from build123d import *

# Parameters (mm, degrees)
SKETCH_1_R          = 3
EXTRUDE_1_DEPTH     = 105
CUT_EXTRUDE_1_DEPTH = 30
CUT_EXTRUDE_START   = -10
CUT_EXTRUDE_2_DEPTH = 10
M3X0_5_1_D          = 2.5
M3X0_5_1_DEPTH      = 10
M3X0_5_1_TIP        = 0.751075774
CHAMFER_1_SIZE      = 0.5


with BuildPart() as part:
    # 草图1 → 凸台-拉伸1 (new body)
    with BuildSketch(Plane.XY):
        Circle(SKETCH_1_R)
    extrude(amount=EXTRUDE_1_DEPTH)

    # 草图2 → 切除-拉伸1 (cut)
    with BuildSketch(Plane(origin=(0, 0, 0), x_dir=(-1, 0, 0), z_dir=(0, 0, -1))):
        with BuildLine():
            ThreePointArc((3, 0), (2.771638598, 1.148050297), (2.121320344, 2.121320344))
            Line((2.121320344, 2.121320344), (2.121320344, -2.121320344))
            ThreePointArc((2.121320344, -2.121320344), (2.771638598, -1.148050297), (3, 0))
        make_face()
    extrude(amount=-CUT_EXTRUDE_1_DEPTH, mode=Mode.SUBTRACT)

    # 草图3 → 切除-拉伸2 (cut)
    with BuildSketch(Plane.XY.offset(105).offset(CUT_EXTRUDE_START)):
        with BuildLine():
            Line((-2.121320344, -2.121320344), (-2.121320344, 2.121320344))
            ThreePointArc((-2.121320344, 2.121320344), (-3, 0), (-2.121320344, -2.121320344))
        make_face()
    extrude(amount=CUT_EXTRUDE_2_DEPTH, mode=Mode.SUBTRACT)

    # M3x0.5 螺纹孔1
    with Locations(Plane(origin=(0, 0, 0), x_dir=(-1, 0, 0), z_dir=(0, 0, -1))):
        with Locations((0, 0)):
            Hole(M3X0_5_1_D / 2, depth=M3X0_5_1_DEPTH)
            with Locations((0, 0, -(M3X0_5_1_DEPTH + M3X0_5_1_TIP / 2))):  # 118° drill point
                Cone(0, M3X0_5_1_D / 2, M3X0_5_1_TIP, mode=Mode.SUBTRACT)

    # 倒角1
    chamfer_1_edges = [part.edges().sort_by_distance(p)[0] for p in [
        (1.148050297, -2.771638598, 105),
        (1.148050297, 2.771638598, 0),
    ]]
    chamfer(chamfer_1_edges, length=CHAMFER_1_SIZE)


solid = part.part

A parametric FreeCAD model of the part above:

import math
import FreeCAD as App
import Part
import Sketcher

V = App.Vector
Q = App.Units.Quantity


def edges_at(feature, points):
    """Names of the edges that pass closest to the given points."""
    edges = feature.Shape.Edges
    near = lambda p: min(range(len(edges)), key=lambda i: edges[i].distToShape(Part.Vertex(*p))[0])
    return sorted({f"Edge{near(p) + 1}" for p in points})

doc = App.newDocument("Part")
params = doc.addObject("Spreadsheet::Sheet", "Params")
for row, (alias, value) in enumerate([
    ("sketch1_diameter", "6 mm"),
    ("pad1_length", "105 mm"),
    ("sketch2_radius", "3 mm"),
    ("pocket1_length", "30 mm"),
    ("sketch3_radius", "3 mm"),
    ("pocket2_length", "10 mm"),
    ("sketch4_diameter", "2.5 mm"),
    ("hole_diameter", "2.5 mm"),
    ("hole_depth", "10 mm"),
    ("chamfer_size", "0.5 mm"),
], start=1):
    params.set(f"A{row}", alias)
    params.set(f"B{row}", "=" + value)
    params.setAlias(f"B{row}", alias)

body = doc.addObject("PartDesign::Body", "Body")

sketch1 = body.newObject("Sketcher::SketchObject", "Sketch")
sketch1.AttachmentSupport = (doc.getObject("XY_Plane"), [""])
sketch1.MapMode = "FlatFace"
sketch1.addGeometry(Part.Circle(V(0, 0, 0), V(0, 0, 1), 3), False)
sketch1.addConstraint([
    Sketcher.Constraint("Coincident", 0, 3, -1, 1),
    Sketcher.Constraint("Diameter", 0, Q("6 mm")),
])
sketch1.setExpression("Constraints[1]", "Params.sketch1_diameter")
pad1 = body.newObject("PartDesign::Pad", "Pad")
pad1.Profile = sketch1
pad1.setExpression("Length", "Params.pad1_length")

sketch2 = body.newObject("Sketcher::SketchObject", "Sketch001")
sketch2.AttachmentSupport = (doc.getObject("XY_Plane"), [""])
sketch2.MapMode = "FlatFace"
sketch2.addGeometry([
    Part.ArcOfCircle(Part.Circle(V(0, 0, 0), V(0, 0, 1), 3), math.radians(135), math.radians(180)),
    Part.LineSegment(V(-2.1, 2.1, 0), V(-2.1, -2.1, 0)),
    Part.ArcOfCircle(Part.Circle(V(0, 0, 0), V(0, 0, 1), 3), math.radians(180), math.radians(225)),
], False)
sketch2.addConstraint([
    Sketcher.Constraint("Coincident", 0, 1, 1, 1),
    Sketcher.Constraint("Coincident", 1, 2, 2, 2),
    Sketcher.Constraint("Tangent", 2, 1, 0, 2),
    Sketcher.Constraint("Vertical", 1),
    Sketcher.Constraint("Coincident", 0, 3, -1, 1),
    Sketcher.Constraint("Equal", 0, 2),
    Sketcher.Constraint("PointOnObject", 2, 1, -1),
    Sketcher.Constraint("Radius", 0, Q("3 mm")),
    Sketcher.Constraint("DistanceY", 1, 2, 1, 1, Q("4.242641 mm")),
])
sketch2.setExpression("Constraints[7]", "Params.sketch2_radius")
pocket1 = body.newObject("PartDesign::Pocket", "Pocket")
pocket1.Profile = sketch2
pocket1.setExpression("Length", "Params.pocket1_length")
pocket1.Reversed = True

sketch3 = body.newObject("Sketcher::SketchObject", "Sketch002")
sketch3.AttachmentSupport = (doc.getObject("XY_Plane"), [""])
sketch3.MapMode = "FlatFace"
sketch3.AttachmentOffset = App.Placement(V(0, 0, 95), App.Rotation())
sketch3.addGeometry([
    Part.LineSegment(V(-2.1, -2.1, 0), V(-2.1, 2.1, 0)),
    Part.ArcOfCircle(Part.Circle(V(0, 0, 0), V(0, 0, 1), 3), math.radians(135), math.radians(225)),
], False)
sketch3.addConstraint([
    Sketcher.Constraint("Coincident", 0, 1, 1, 2),
    Sketcher.Constraint("Coincident", 1, 1, 0, 2),
    Sketcher.Constraint("Vertical", 0),
    Sketcher.Constraint("Coincident", 1, 3, -1, 1),
    Sketcher.Constraint("Radius", 1, Q("3 mm")),
    Sketcher.Constraint("DistanceY", 0, 1, 0, 2, Q("4.242641 mm")),
])
sketch3.setExpression("Constraints[4]", "Params.sketch3_radius")
pocket2 = body.newObject("PartDesign::Pocket", "Pocket001")
pocket2.Profile = sketch3
pocket2.setExpression("Length", "Params.pocket2_length")
pocket2.Reversed = True

sketch4 = body.newObject("Sketcher::SketchObject", "Sketch003")
sketch4.AttachmentSupport = (doc.getObject("XY_Plane"), [""])
sketch4.MapMode = "FlatFace"
sketch4.addGeometry(Part.Circle(V(0, 0, 0), V(0, 0, 1), 1.2), False)
sketch4.addConstraint([
    Sketcher.Constraint("Coincident", 0, 3, -1, 1),
    Sketcher.Constraint("Diameter", 0, Q("2.5 mm")),
])
sketch4.setExpression("Constraints[1]", "Params.sketch4_diameter")
doc.recompute()
hole = body.newObject("PartDesign::Hole", "Hole")
hole.Profile = sketch4
hole.ThreadType = "None"
hole.setExpression("Diameter", "Params.hole_diameter")
hole.DepthType = "Dimension"
hole.setExpression("Depth", "Params.hole_depth")
hole.DrillPoint = "Angled"
hole.DrillPointAngle = 118
hole.Reversed = True
doc.recompute()

chamfer = body.newObject("PartDesign::Chamfer", "Chamfer")
chamfer.Base = (hole, edges_at(hole, [(1.148, -2.772, 105), (1.148, 2.772, 0)]))
chamfer.setExpression("Size", "Params.chamfer_size")

doc.recompute()
